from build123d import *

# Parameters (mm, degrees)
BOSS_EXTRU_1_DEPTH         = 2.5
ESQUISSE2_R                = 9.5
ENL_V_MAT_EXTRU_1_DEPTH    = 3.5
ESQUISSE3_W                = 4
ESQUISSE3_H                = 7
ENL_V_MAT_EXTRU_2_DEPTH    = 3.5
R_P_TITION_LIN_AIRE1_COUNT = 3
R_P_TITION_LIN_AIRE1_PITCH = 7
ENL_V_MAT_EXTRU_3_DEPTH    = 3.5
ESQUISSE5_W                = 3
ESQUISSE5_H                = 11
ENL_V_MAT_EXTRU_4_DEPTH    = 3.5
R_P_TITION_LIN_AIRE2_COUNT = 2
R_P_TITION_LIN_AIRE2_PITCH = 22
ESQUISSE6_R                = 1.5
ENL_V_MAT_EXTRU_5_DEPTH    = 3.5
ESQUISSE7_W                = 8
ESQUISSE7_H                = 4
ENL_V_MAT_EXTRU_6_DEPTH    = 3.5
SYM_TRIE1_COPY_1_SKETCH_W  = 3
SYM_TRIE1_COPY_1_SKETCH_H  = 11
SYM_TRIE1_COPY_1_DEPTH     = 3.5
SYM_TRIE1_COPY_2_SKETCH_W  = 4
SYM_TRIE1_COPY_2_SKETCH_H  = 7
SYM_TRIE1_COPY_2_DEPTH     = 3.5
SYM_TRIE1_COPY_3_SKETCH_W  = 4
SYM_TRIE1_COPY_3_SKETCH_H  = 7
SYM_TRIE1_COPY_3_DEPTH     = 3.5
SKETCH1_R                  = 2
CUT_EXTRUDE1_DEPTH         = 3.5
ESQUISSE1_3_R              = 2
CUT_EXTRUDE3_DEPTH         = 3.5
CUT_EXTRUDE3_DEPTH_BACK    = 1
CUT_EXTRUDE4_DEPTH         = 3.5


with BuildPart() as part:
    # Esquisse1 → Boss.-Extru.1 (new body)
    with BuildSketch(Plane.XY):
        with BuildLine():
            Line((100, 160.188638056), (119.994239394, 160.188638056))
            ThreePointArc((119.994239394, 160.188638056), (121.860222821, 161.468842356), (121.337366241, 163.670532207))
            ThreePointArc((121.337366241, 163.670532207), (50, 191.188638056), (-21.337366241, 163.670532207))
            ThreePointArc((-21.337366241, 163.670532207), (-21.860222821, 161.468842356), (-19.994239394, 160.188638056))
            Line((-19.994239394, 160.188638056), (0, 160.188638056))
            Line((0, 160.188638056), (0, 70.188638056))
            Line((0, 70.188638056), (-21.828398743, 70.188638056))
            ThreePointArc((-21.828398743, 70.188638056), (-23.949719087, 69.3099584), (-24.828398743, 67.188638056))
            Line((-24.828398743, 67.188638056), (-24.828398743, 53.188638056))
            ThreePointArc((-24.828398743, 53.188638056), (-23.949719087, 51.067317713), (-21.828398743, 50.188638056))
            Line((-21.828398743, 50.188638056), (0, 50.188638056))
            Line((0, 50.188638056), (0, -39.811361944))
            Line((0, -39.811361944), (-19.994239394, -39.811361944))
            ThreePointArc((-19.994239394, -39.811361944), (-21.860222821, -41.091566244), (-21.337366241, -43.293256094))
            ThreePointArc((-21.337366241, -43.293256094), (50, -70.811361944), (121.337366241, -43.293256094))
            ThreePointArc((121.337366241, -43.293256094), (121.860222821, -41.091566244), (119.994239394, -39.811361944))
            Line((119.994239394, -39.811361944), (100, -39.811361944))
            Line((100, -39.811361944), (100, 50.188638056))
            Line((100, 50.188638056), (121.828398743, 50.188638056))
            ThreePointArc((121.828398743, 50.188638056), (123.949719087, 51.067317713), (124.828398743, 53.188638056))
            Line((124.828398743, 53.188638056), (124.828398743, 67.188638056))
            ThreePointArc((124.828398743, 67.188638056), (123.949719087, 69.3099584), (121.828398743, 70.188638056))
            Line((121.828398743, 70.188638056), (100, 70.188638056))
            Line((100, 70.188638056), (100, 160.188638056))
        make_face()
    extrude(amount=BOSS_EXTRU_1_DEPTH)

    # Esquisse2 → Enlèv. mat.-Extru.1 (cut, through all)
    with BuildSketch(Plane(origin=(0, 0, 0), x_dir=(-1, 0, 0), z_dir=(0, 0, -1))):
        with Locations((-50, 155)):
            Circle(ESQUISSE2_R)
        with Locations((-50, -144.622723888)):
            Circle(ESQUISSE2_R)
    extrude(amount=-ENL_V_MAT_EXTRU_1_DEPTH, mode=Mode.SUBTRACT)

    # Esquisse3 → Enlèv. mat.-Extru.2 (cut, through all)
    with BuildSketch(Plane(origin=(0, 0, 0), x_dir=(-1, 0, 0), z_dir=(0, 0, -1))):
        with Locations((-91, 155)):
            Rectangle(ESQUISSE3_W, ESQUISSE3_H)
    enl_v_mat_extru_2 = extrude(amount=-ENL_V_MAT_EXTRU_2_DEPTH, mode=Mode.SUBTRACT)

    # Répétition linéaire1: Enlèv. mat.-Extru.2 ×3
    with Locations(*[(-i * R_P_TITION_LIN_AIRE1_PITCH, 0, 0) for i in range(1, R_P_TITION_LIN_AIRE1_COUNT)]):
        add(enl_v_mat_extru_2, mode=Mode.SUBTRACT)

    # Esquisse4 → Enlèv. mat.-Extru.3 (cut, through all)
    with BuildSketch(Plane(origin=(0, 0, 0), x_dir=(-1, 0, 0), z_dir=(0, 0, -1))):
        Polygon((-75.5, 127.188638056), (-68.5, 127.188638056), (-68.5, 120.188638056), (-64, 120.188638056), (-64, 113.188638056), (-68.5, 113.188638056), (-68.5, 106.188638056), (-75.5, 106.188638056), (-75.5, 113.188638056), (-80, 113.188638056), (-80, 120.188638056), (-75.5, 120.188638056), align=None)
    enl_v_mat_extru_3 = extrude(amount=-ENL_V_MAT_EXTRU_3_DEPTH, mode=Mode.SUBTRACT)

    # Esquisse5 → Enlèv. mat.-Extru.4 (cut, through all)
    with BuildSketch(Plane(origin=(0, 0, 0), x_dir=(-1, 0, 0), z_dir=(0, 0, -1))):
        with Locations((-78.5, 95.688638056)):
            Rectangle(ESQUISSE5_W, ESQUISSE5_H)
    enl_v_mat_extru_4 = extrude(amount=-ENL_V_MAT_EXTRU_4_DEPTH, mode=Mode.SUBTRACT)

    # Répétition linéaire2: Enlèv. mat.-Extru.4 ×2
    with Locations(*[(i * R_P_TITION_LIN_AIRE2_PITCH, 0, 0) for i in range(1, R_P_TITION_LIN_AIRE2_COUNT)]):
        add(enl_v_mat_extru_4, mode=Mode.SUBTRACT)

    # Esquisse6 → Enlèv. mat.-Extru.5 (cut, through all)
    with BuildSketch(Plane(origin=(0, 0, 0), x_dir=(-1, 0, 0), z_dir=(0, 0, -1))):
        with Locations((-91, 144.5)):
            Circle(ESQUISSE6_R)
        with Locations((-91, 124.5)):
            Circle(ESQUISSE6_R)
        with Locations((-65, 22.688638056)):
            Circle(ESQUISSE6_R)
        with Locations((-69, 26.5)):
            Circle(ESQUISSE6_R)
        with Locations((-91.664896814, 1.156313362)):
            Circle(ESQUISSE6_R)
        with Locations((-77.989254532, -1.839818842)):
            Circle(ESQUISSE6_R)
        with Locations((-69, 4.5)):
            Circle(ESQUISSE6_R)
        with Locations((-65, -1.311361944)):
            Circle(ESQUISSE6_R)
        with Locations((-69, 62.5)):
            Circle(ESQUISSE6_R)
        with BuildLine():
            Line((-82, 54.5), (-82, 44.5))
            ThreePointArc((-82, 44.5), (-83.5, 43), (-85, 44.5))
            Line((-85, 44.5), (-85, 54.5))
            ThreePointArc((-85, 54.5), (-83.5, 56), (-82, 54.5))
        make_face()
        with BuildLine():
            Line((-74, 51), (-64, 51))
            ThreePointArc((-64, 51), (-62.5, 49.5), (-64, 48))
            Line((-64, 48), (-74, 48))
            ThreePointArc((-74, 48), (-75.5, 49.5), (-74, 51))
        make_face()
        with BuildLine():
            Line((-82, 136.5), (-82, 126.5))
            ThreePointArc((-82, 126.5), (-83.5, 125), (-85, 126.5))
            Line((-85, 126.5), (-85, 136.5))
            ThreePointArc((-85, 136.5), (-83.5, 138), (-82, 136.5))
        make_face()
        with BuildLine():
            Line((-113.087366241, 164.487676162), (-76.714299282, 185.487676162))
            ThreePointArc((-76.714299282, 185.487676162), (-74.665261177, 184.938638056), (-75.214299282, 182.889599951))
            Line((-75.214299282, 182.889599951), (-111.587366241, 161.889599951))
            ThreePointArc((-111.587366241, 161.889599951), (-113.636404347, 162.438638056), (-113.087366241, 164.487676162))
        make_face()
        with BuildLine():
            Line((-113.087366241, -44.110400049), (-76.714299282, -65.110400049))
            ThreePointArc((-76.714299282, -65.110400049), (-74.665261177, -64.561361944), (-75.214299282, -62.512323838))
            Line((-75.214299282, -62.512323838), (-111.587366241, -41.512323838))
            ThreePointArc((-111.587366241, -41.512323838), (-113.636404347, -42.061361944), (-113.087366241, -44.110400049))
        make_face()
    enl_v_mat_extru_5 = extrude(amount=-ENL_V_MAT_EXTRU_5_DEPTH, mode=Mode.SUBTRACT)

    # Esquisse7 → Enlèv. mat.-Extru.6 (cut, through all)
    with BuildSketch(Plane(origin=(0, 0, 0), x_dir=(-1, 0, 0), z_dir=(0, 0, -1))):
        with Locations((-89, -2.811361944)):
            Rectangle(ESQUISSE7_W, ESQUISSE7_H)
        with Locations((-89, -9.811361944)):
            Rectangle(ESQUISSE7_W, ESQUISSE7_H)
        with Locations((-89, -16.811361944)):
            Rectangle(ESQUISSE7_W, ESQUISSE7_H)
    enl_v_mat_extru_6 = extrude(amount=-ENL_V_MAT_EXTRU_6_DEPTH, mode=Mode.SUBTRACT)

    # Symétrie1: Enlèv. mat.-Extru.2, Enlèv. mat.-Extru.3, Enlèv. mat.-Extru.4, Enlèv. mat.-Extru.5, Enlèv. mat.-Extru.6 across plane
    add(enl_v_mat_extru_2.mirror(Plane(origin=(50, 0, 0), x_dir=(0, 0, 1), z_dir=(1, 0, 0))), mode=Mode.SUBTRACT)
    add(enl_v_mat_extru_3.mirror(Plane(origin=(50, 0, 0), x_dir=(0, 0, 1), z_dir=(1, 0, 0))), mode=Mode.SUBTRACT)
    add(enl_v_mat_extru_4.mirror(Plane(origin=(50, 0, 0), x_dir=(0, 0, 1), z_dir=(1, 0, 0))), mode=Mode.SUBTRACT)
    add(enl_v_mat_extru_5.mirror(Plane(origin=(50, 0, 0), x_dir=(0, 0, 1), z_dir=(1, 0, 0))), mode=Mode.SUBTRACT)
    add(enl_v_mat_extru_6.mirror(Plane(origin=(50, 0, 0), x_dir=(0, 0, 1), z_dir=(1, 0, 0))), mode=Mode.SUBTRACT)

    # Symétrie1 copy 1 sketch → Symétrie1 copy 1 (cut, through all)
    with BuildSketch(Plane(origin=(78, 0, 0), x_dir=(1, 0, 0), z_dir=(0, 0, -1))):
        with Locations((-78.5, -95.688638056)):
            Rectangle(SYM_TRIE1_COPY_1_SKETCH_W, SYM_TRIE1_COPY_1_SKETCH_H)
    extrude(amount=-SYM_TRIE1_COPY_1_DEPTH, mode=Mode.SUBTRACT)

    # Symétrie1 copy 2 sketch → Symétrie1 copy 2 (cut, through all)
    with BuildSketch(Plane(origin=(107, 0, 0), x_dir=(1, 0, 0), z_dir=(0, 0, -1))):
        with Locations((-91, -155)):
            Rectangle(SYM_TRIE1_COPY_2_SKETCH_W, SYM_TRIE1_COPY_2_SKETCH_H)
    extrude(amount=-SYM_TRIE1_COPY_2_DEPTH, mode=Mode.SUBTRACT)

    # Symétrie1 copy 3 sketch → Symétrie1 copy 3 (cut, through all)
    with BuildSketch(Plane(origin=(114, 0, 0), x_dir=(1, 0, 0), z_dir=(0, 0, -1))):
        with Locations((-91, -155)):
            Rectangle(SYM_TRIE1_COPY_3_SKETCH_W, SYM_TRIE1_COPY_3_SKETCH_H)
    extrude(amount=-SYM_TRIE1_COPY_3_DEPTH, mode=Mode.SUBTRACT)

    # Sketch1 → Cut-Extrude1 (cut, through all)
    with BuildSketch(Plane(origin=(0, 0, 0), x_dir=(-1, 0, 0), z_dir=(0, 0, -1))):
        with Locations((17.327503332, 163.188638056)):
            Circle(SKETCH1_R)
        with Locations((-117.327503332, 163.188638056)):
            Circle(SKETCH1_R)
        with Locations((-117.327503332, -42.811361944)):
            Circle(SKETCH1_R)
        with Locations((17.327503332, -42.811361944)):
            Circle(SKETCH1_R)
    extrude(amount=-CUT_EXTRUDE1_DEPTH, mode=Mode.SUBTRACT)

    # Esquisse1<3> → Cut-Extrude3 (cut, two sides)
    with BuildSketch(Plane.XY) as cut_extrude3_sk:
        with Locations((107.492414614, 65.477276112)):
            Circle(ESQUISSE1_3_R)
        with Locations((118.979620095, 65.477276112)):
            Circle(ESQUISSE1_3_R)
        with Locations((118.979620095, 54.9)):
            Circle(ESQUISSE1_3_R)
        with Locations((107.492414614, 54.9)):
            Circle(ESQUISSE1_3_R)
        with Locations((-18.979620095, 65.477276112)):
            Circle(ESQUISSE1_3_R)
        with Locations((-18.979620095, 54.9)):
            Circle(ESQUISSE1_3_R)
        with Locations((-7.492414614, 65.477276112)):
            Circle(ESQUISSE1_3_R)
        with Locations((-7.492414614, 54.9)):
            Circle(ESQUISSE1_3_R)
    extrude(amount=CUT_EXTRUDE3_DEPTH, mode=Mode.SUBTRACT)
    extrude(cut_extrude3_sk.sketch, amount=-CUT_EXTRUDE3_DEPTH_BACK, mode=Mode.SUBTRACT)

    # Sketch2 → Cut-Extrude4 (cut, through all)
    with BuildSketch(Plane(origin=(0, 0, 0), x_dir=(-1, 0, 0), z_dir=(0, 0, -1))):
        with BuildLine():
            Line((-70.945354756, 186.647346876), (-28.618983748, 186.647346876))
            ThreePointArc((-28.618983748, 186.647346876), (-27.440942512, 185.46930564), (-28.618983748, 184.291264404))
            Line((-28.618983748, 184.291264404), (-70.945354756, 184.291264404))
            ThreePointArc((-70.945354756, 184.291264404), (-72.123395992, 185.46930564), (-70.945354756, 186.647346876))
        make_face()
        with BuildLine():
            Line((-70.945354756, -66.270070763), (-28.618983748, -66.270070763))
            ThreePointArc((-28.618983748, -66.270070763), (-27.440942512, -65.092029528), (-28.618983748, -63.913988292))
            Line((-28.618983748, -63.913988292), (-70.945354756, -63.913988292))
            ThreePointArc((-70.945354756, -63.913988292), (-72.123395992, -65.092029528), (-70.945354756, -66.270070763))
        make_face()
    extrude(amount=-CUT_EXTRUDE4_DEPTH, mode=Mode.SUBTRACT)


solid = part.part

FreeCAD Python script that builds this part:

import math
import FreeCAD as App
import Part
import Sketcher

V = App.Vector
Q = App.Units.Quantity


def add_polygon(sketch, points):
    """Adds a closed chain of lines whose ends are joined by coincident constraints."""
    first, n = sketch.GeometryCount, len(points)
    for a, b in zip(points, points[1:] + points[:1]):
        sketch.addGeometry(Part.LineSegment(App.Vector(*a, 0), App.Vector(*b, 0)), False)
    for i in range(n):
        sketch.addConstraint(Sketcher.Constraint("Coincident", first + i, 2, first + (i + 1) % n, 1))

doc = App.newDocument("Part")
body = doc.addObject("PartDesign::Body", "Body")

# Sketch on XY plane
sketch1 = doc.addObject("Sketcher::SketchObject", "Sketch")
body.addObject(sketch1)
sketch1.AttachmentSupport = (doc.XY_Plane, [""])
sketch1.MapMode = "FlatFace"
sketch1.addGeometry(Part.LineSegment(V(100, 160.2, 0), V(120, 160.2, 0)), False)
sketch1.addGeometry(Part.ArcOfCircle(Part.Circle(V(120, 162.2, 0), V(0, 0, 1), 2), math.radians(-90), math.radians(48)), False)
sketch1.addGeometry(Part.ArcOfCircle(Part.Circle(V(50, 85, 0), V(0, 0, 1), 106.2), math.radians(48), math.radians(132)), False)
sketch1.addGeometry(Part.ArcOfCircle(Part.Circle(V(-20, 162.2, 0), V(0, 0, 1), 2), math.radians(132), math.radians(270)), False)
sketch1.addGeometry(Part.LineSegment(V(-20, 160.2, 0), V(0, 160.2, 0)), False)
sketch1.addGeometry(Part.LineSegment(V(0, 160.2, 0), V(0, 70.2, 0)), False)
sketch1.addGeometry(Part.LineSegment(V(0, 70.2, 0), V(-21.8, 70.2, 0)), False)
sketch1.addGeometry(Part.ArcOfCircle(Part.Circle(V(-21.8, 67.2, 0), V(0, 0, 1), 3), math.radians(90), math.radians(180)), False)
sketch1.addGeometry(Part.LineSegment(V(-24.8, 67.2, 0), V(-24.8, 53.2, 0)), False)
sketch1.addGeometry(Part.ArcOfCircle(Part.Circle(V(-21.8, 53.2, 0), V(0, 0, 1), 3), math.radians(180), math.radians(270)), False)
sketch1.addGeometry(Part.LineSegment(V(-21.8, 50.2, 0), V(0, 50.2, 0)), False)
sketch1.addGeometry(Part.LineSegment(V(0, 50.2, 0), V(0, -39.8, 0)), False)
sketch1.addGeometry(Part.LineSegment(V(0, -39.8, 0), V(-20, -39.8, 0)), False)
sketch1.addGeometry(Part.ArcOfCircle(Part.Circle(V(-20, -41.8, 0), V(0, 0, 1), 2), math.radians(90), math.radians(228)), False)
sketch1.addGeometry(Part.ArcOfCircle(Part.Circle(V(50, 35.4, 0), V(0, 0, 1), 106.2), math.radians(-132), math.radians(-48)), False)
sketch1.addGeometry(Part.ArcOfCircle(Part.Circle(V(120, -41.8, 0), V(0, 0, 1), 2), math.radians(-48), math.radians(90)), False)
sketch1.addGeometry(Part.LineSegment(V(120, -39.8, 0), V(100, -39.8, 0)), False)
sketch1.addGeometry(Part.LineSegment(V(100, -39.8, 0), V(100, 50.2, 0)), False)
sketch1.addGeometry(Part.LineSegment(V(100, 50.2, 0), V(121.8, 50.2, 0)), False)
sketch1.addGeometry(Part.ArcOfCircle(Part.Circle(V(121.8, 53.2, 0), V(0, 0, 1), 3), math.radians(-90), math.radians(0)), False)
sketch1.addGeometry(Part.LineSegment(V(124.8, 53.2, 0), V(124.8, 67.2, 0)), False)
sketch1.addGeometry(Part.ArcOfCircle(Part.Circle(V(121.8, 67.2, 0), V(0, 0, 1), 3), math.radians(0), math.radians(90)), False)
sketch1.addGeometry(Part.LineSegment(V(121.8, 70.2, 0), V(100, 70.2, 0)), False)
sketch1.addGeometry(Part.LineSegment(V(100, 70.2, 0), V(100, 160.2, 0)), False)
sketch1.addConstraint(Sketcher.Constraint("Tangent", 0, 2, 1, 1))
sketch1.addConstraint(Sketcher.Constraint("Tangent", 1, 2, 2, 1))
sketch1.addConstraint(Sketcher.Constraint("Tangent", 2, 2, 3, 1))
sketch1.addConstraint(Sketcher.Constraint("Tangent", 3, 2, 4, 1))
sketch1.addConstraint(Sketcher.Constraint("Coincident", 4, 2, 5, 1))
sketch1.addConstraint(Sketcher.Constraint("Coincident", 5, 2, 6, 1))
sketch1.addConstraint(Sketcher.Constraint("Tangent", 6, 2, 7, 1))
sketch1.addConstraint(Sketcher.Constraint("Tangent", 7, 2, 8, 1))
sketch1.addConstraint(Sketcher.Constraint("Tangent", 8, 2, 9, 1))
sketch1.addConstraint(Sketcher.Constraint("Tangent", 9, 2, 10, 1))
sketch1.addConstraint(Sketcher.Constraint("Coincident", 10, 2, 11, 1))
sketch1.addConstraint(Sketcher.Constraint("Coincident", 11, 2, 12, 1))
sketch1.addConstraint(Sketcher.Constraint("Tangent", 12, 2, 13, 1))
sketch1.addConstraint(Sketcher.Constraint("Tangent", 13, 2, 14, 1))
sketch1.addConstraint(Sketcher.Constraint("Tangent", 14, 2, 15, 1))
sketch1.addConstraint(Sketcher.Constraint("Tangent", 15, 2, 16, 1))
sketch1.addConstraint(Sketcher.Constraint("Coincident", 16, 2, 17, 1))
sketch1.addConstraint(Sketcher.Constraint("Coincident", 17, 2, 18, 1))
sketch1.addConstraint(Sketcher.Constraint("Tangent", 18, 2, 19, 1))
sketch1.addConstraint(Sketcher.Constraint("Tangent", 19, 2, 20, 1))
sketch1.addConstraint(Sketcher.Constraint("Tangent", 20, 2, 21, 1))
sketch1.addConstraint(Sketcher.Constraint("Tangent", 21, 2, 22, 1))
sketch1.addConstraint(Sketcher.Constraint("Coincident", 22, 2, 23, 1))
sketch1.addConstraint(Sketcher.Constraint("Coincident", 23, 2, 0, 1))
sketch1.addConstraint(Sketcher.Constraint("Horizontal", 0))
sketch1.addConstraint(Sketcher.Constraint("Horizontal", 4))
sketch1.addConstraint(Sketcher.Constraint("Vertical", 5))
sketch1.addConstraint(Sketcher.Constraint("Horizontal", 6))
sketch1.addConstraint(Sketcher.Constraint("Vertical", 8))
sketch1.addConstraint(Sketcher.Constraint("Horizontal", 10))
sketch1.addConstraint(Sketcher.Constraint("Vertical", 11))
sketch1.addConstraint(Sketcher.Constraint("Horizontal", 12))
sketch1.addConstraint(Sketcher.Constraint("Horizontal", 16))
sketch1.addConstraint(Sketcher.Constraint("Vertical", 17))
sketch1.addConstraint(Sketcher.Constraint("Horizontal", 18))
sketch1.addConstraint(Sketcher.Constraint("Vertical", 20))
sketch1.addConstraint(Sketcher.Constraint("Horizontal", 22))
sketch1.addConstraint(Sketcher.Constraint("Vertical", 23))
sketch1.addConstraint(Sketcher.Constraint("Equal", 1, 3))
sketch1.addConstraint(Sketcher.Constraint("Equal", 7, 9))
sketch1.addConstraint(Sketcher.Constraint("Equal", 3, 13))
sketch1.addConstraint(Sketcher.Constraint("Equal", 2, 14))
sketch1.addConstraint(Sketcher.Constraint("Equal", 13, 15))
sketch1.addConstraint(Sketcher.Constraint("Equal", 9, 19))
sketch1.addConstraint(Sketcher.Constraint("Equal", 19, 21))
sketch1.addConstraint(Sketcher.Constraint("PointOnObject", 4, 2, -2))
sketch1.addConstraint(Sketcher.Constraint("PointOnObject", 10, 2, -2))
sketch1.addConstraint(Sketcher.Constraint("Horizontal", 1, 3, 3, 3))
sketch1.addConstraint(Sketcher.Constraint("Horizontal", 13, 3, 15, 3))
sketch1.addConstraint(Sketcher.Constraint("Horizontal", 9, 3, 19, 3))
sketch1.addConstraint(Sketcher.Constraint("Horizontal", 7, 3, 21, 3))
sketch1.addConstraint(Sketcher.Constraint("Vertical", 3, 3, 13, 3))
sketch1.addConstraint(Sketcher.Constraint("Vertical", 2, 3, 14, 3))
sketch1.addConstraint(Sketcher.Constraint("Vertical", 17, 2, 22, 2))
sketch1.addConstraint(Sketcher.Constraint("Equal", 0, 4))
sketch1.addConstraint(Sketcher.Constraint("Equal", 10, 18))
sketch1.addConstraint(Sketcher.Constraint("Equal", 5, 11))
sketch1.addConstraint(Sketcher.Constraint("Radius", 1, 2.0))
sketch1.addConstraint(Sketcher.Constraint("Radius", 7, 3.0))
sketch1.addConstraint(Sketcher.Constraint("DistanceY", 5, 2, 5, 1, 90.0))
sketch1.addConstraint(Sketcher.Constraint("DistanceY", 8, 2, 8, 1, 14.0))
sketch1.addConstraint(Sketcher.Constraint("DistanceX", -1, 1, 2, 3, 50.0))
sketch1.addConstraint(Sketcher.Constraint("DistanceX", 6, 2, 6, 1, 21.828399))
sketch1.addConstraint(Sketcher.Constraint("Radius", 2, 106.225806))
sketch1.addConstraint(Sketcher.Constraint("DistanceX", 0, 1, 0, 2, 19.994239))
sketch1.addConstraint(Sketcher.Constraint("DistanceY", -1, 1, 1, 3, 162.188638))
pad1 = doc.addObject("PartDesign::Pad", "Pad")
body.addObject(pad1)
pad1.Profile = sketch1
pad1.Length = 2.5

# Sketch on XY plane
sketch2 = doc.addObject("Sketcher::SketchObject", "Sketch001")
body.addObject(sketch2)
sketch2.AttachmentSupport = (doc.XY_Plane, [""])
sketch2.MapMode = "FlatFace"
sketch2.addGeometry(Part.Circle(V(50, 155, 0), V(0, 0, 1), 10), False)
sketch2.addGeometry(Part.Circle(V(50, -145, 0), V(0, 0, 1), 10), False)
sketch2.addConstraint(Sketcher.Constraint("Equal", 0, 1))
sketch2.addConstraint(Sketcher.Constraint("Vertical", 0, 3, 1, 3))
sketch2.addConstraint(Sketcher.Constraint("Diameter", 0, 19.0))
sketch2.addConstraint(Sketcher.Constraint("DistanceX", -1, 1, 0, 3, 50.0))
sketch2.addConstraint(Sketcher.Constraint("DistanceY", -1, 1, 0, 3, 155.0))
sketch2.addConstraint(Sketcher.Constraint("DistanceY", 1, 3, -1, 1, 144.622724))
pocket1 = doc.addObject("PartDesign::Pocket", "Pocket")
body.addObject(pocket1)
pocket1.Profile = sketch2
pocket1.Type = "ThroughAll"
pocket1.Reversed = True

# Sketch on XY plane
sketch3 = doc.addObject("Sketcher::SketchObject", "Sketch002")
body.addObject(sketch3)
sketch3.AttachmentSupport = (doc.XY_Plane, [""])
sketch3.MapMode = "FlatFace"
add_polygon(sketch3, [(93, 158.5), (93, 151.5), (89, 151.5), (89, 158.5)])  # lines 0-3
sketch3.addConstraint(Sketcher.Constraint("Vertical", 0))
sketch3.addConstraint(Sketcher.Constraint("Horizontal", 1))
sketch3.addConstraint(Sketcher.Constraint("Vertical", 2))
sketch3.addConstraint(Sketcher.Constraint("Horizontal", 3))
sketch3.addConstraint(Sketcher.Constraint("DistanceX", 1, 2, 1, 1, 4.0))
sketch3.addConstraint(Sketcher.Constraint("DistanceY", 0, 2, 0, 1, 7.0))
sketch3.addConstraint(Sketcher.Constraint("DistanceX", -1, 1, 0, 2, 93.0))
sketch3.addConstraint(Sketcher.Constraint("DistanceY", -1, 1, 0, 2, 151.5))
pocket2 = doc.addObject("PartDesign::Pocket", "Pocket001")
body.addObject(pocket2)
pocket2.Profile = sketch3
pocket2.Type = "ThroughAll"
pocket2.Reversed = True
doc.recompute()

linearpattern = doc.addObject("PartDesign::LinearPattern", "LinearPattern")
body.addObject(linearpattern)
linearpattern.Originals = [pocket2]
linearpattern.Direction = (doc.X_Axis, [""])
linearpattern.Mode = "offset"
linearpattern.Offset = 7
linearpattern.Occurrences = 3
linearpattern.Reversed = True
body.Tip = linearpattern

# Sketch on XY plane
sketch4 = doc.addObject("Sketcher::SketchObject", "Sketch003")
body.addObject(sketch4)
sketch4.AttachmentSupport = (doc.XY_Plane, [""])
sketch4.MapMode = "FlatFace"
add_polygon(sketch4, [(68.5, 127.2), (75.5, 127.2), (75.5, 120.2), (80, 120.2), (80, 113.2), (75.5, 113.2), (75.5, 106.2), (68.5, 106.2), (68.5, 113.2), (64, 113.2), (64, 120.2), (68.5, 120.2)])  # lines 0-11
sketch4.addConstraint(Sketcher.Constraint("Horizontal", 0))
sketch4.addConstraint(Sketcher.Constraint("Vertical", 1))
sketch4.addConstraint(Sketcher.Constraint("Horizontal", 2))
sketch4.addConstraint(Sketcher.Constraint("Vertical", 3))
sketch4.addConstraint(Sketcher.Constraint("Horizontal", 4))
sketch4.addConstraint(Sketcher.Constraint("Vertical", 5))
sketch4.addConstraint(Sketcher.Constraint("Horizontal", 6))
sketch4.addConstraint(Sketcher.Constraint("Vertical", 7))
sketch4.addConstraint(Sketcher.Constraint("Horizontal", 8))
sketch4.addConstraint(Sketcher.Constraint("Vertical", 9))
sketch4.addConstraint(Sketcher.Constraint("Horizontal", 10))
sketch4.addConstraint(Sketcher.Constraint("Vertical", 11))
sketch4.addConstraint(Sketcher.Constraint("Horizontal", 4, 2, 7, 2))
sketch4.addConstraint(Sketcher.Constraint("Horizontal", 2, 2, 9, 2))
sketch4.addConstraint(Sketcher.Constraint("Vertical", 1, 2, 4, 2))
sketch4.addConstraint(Sketcher.Constraint("Vertical", 7, 2, 10, 2))
sketch4.addConstraint(Sketcher.Constraint("Equal", 4, 8))
sketch4.addConstraint(Sketcher.Constraint("Equal", 6, 1))
sketch4.addConstraint(Sketcher.Constraint("Equal", 1, 3))
sketch4.addConstraint(Sketcher.Constraint("Equal", 3, 5))
sketch4.addConstraint(Sketcher.Constraint("DistanceX", 0, 1, 0, 2, 7.0))
sketch4.addConstraint(Sketcher.Constraint("DistanceX", 2, 1, 2, 2, 4.5))
sketch4.addConstraint(Sketcher.Constraint("DistanceX", -1, 1, 2, 2, 80.0))
sketch4.addConstraint(Sketcher.Constraint("DistanceY", -1, 1, 0, 2, 127.188638))
pocket3 = doc.addObject("PartDesign::Pocket", "Pocket002")
body.addObject(pocket3)
pocket3.Profile = sketch4
pocket3.Type = "ThroughAll"
pocket3.Reversed = True

# Sketch on XY plane
sketch5 = doc.addObject("Sketcher::SketchObject", "Sketch004")
body.addObject(sketch5)
sketch5.AttachmentSupport = (doc.XY_Plane, [""])
sketch5.MapMode = "FlatFace"
add_polygon(sketch5, [(80, 101.2), (80, 90.2), (77, 90.2), (77, 101.2)])  # lines 0-3
sketch5.addConstraint(Sketcher.Constraint("Vertical", 0))
sketch5.addConstraint(Sketcher.Constraint("Horizontal", 1))
sketch5.addConstraint(Sketcher.Constraint("Vertical", 2))
sketch5.addConstraint(Sketcher.Constraint("Horizontal", 3))
sketch5.addConstraint(Sketcher.Constraint("DistanceX", 1, 2, 1, 1, 3.0))
sketch5.addConstraint(Sketcher.Constraint("DistanceY", 0, 2, 0, 1, 11.0))
sketch5.addConstraint(Sketcher.Constraint("DistanceX", -1, 1, 0, 2, 80.0))
sketch5.addConstraint(Sketcher.Constraint("DistanceY", -1, 1, 0, 2, 90.188638))
pocket4 = doc.addObject("PartDesign::Pocket", "Pocket003")
body.addObject(pocket4)
pocket4.Profile = sketch5
pocket4.Type = "ThroughAll"
pocket4.Reversed = True
doc.recompute()

linearpattern2 = doc.addObject("PartDesign::LinearPattern", "LinearPattern001")
body.addObject(linearpattern2)
linearpattern2.Originals = [pocket4]
linearpattern2.Direction = (doc.X_Axis, [""])
linearpattern2.Mode = "offset"
linearpattern2.Offset = 22
linearpattern2.Occurrences = 2
body.Tip = linearpattern2

# Sketch on XY plane
sketch6 = doc.addObject("Sketcher::SketchObject", "Sketch005")
body.addObject(sketch6)
sketch6.AttachmentSupport = (doc.XY_Plane, [""])
sketch6.MapMode = "FlatFace"
sketch6.addGeometry(Part.Circle(V(91, 144.5, 0), V(0, 0, 1), 1.5), False)
sketch6.addGeometry(Part.Circle(V(91, 124.5, 0), V(0, 0, 1), 1.5), False)
sketch6.addGeometry(Part.Circle(V(65, 22.7, 0), V(0, 0, 1), 1.5), False)
sketch6.addGeometry(Part.Circle(V(69, 26.5, 0), V(0, 0, 1), 1.5), False)
sketch6.addGeometry(Part.Circle(V(91.7, 1.2, 0), V(0, 0, 1), 1.5), False)
sketch6.addGeometry(Part.Circle(V(78, -1.8, 0), V(0, 0, 1), 1.5), False)
sketch6.addGeometry(Part.Circle(V(69, 4.5, 0), V(0, 0, 1), 1.5), False)
sketch6.addGeometry(Part.Circle(V(65, -1.3, 0), V(0, 0, 1), 1.5), False)
sketch6.addGeometry(Part.Circle(V(69, 62.5, 0), V(0, 0, 1), 1.5), False)
sketch6.addGeometry(Part.LineSegment(V(82, 44.5, 0), V(82, 54.5, 0)), False)
sketch6.addGeometry(Part.ArcOfCircle(Part.Circle(V(83.5, 54.5, 0), V(0, 0, 1), 1.5), math.radians(0), math.radians(180)), False)
sketch6.addGeometry(Part.LineSegment(V(85, 54.5, 0), V(85, 44.5, 0)), False)
sketch6.addGeometry(Part.ArcOfCircle(Part.Circle(V(83.5, 44.5, 0), V(0, 0, 1), 1.5), math.radians(180), math.radians(360)), False)
sketch6.addGeometry(Part.LineSegment(V(64, 51, 0), V(74, 51, 0)), False)
sketch6.addGeometry(Part.ArcOfCircle(Part.Circle(V(74, 49.5, 0), V(0, 0, 1), 1.5), math.radians(-90), math.radians(90)), False)
sketch6.addGeometry(Part.LineSegment(V(74, 48, 0), V(64, 48, 0)), False)
sketch6.addGeometry(Part.ArcOfCircle(Part.Circle(V(64, 49.5, 0), V(0, 0, 1), 1.5), math.radians(90), math.radians(270)), False)
sketch6.addGeometry(Part.LineSegment(V(82, 126.5, 0), V(82, 136.5, 0)), False)
sketch6.addGeometry(Part.ArcOfCircle(Part.Circle(V(83.5, 136.5, 0), V(0, 0, 1), 1.5), math.radians(0), math.radians(180)), False)
sketch6.addGeometry(Part.LineSegment(V(85, 136.5, 0), V(85, 126.5, 0)), False)
sketch6.addGeometry(Part.ArcOfCircle(Part.Circle(V(83.5, 126.5, 0), V(0, 0, 1), 1.5), math.radians(180), math.radians(360)), False)
sketch6.addGeometry(Part.LineSegment(V(76.7, 185.5, 0), V(113.1, 164.5, 0)), False)
sketch6.addGeometry(Part.ArcOfCircle(Part.Circle(V(112.3, 163.2, 0), V(0, 0, 1), 1.5), math.radians(-120), math.radians(60)), False)
sketch6.addGeometry(Part.LineSegment(V(111.6, 161.9, 0), V(75.2, 182.9, 0)), False)
sketch6.addGeometry(Part.ArcOfCircle(Part.Circle(V(76, 184.2, 0), V(0, 0, 1), 1.5), math.radians(60), math.radians(240)), False)
sketch6.addGeometry(Part.LineSegment(V(113.1, -44.1, 0), V(76.7, -65.1, 0)), False)
sketch6.addGeometry(Part.ArcOfCircle(Part.Circle(V(76, -63.8, 0), V(0, 0, 1), 1.5), math.radians(120), math.radians(300)), False)
sketch6.addGeometry(Part.LineSegment(V(75.2, -62.5, 0), V(111.6, -41.5, 0)), False)
sketch6.addGeometry(Part.ArcOfCircle(Part.Circle(V(112.3, -42.8, 0), V(0, 0, 1), 1.5), math.radians(-60), math.radians(120)), False)
sketch6.addConstraint(Sketcher.Constraint("Tangent", 9, 2, 10, 2))
sketch6.addConstraint(Sketcher.Constraint("Tangent", 10, 1, 11, 1))
sketch6.addConstraint(Sketcher.Constraint("Tangent", 11, 2, 12, 2))
sketch6.addConstraint(Sketcher.Constraint("Tangent", 12, 1, 9, 1))
sketch6.addConstraint(Sketcher.Constraint("Tangent", 13, 2, 14, 2))
sketch6.addConstraint(Sketcher.Constraint("Tangent", 14, 1, 15, 1))
sketch6.addConstraint(Sketcher.Constraint("Tangent", 15, 2, 16, 2))
sketch6.addConstraint(Sketcher.Constraint("Tangent", 16, 1, 13, 1))
sketch6.addConstraint(Sketcher.Constraint("Tangent", 17, 2, 18, 2))
sketch6.addConstraint(Sketcher.Constraint("Tangent", 18, 1, 19, 1))
sketch6.addConstraint(Sketcher.Constraint("Tangent", 19, 2, 20, 2))
sketch6.addConstraint(Sketcher.Constraint("Tangent", 20, 1, 17, 1))
sketch6.addConstraint(Sketcher.Constraint("Tangent", 21, 2, 22, 2))
sketch6.addConstraint(Sketcher.Constraint("Tangent", 22, 1, 23, 1))
sketch6.addConstraint(Sketcher.Constraint("Tangent", 23, 2, 24, 2))
sketch6.addConstraint(Sketcher.Constraint("Tangent", 24, 1, 21, 1))
sketch6.addConstraint(Sketcher.Constraint("Tangent", 25, 2, 26, 2))
sketch6.addConstraint(Sketcher.Constraint("Tangent", 26, 1, 27, 1))
sketch6.addConstraint(Sketcher.Constraint("Tangent", 27, 2, 28, 2))
sketch6.addConstraint(Sketcher.Constraint("Tangent", 28, 1, 25, 1))
sketch6.addConstraint(Sketcher.Constraint("Vertical", 9))
sketch6.addConstraint(Sketcher.Constraint("Vertical", 11))
sketch6.addConstraint(Sketcher.Constraint("Horizontal", 13))
sketch6.addConstraint(Sketcher.Constraint("Horizontal", 15))
sketch6.addConstraint(Sketcher.Constraint("Vertical", 17))
sketch6.addConstraint(Sketcher.Constraint("Vertical", 19))
sketch6.addConstraint(Sketcher.Constraint("Equal", 0, 1))
sketch6.addConstraint(Sketcher.Constraint("Equal", 1, 2))
sketch6.addConstraint(Sketcher.Constraint("Equal", 2, 3))
sketch6.addConstraint(Sketcher.Constraint("Equal", 3, 4))
sketch6.addConstraint(Sketcher.Constraint("Equal", 4, 5))
sketch6.addConstraint(Sketcher.Constraint("Equal", 5, 6))
sketch6.addConstraint(Sketcher.Constraint("Equal", 6, 7))
sketch6.addConstraint(Sketcher.Constraint("Equal", 7, 8))
sketch6.addConstraint(Sketcher.Constraint("Equal", 8, 10))
sketch6.addConstraint(Sketcher.Constraint("Equal", 12, 14))
sketch6.addConstraint(Sketcher.Constraint("Equal", 16, 18))
sketch6.addConstraint(Sketcher.Constraint("Equal", 20, 22))
sketch6.addConstraint(Sketcher.Constraint("Equal", 22, 24))
sketch6.addConstraint(Sketcher.Constraint("Equal", 24, 26))
sketch6.addConstraint(Sketcher.Constraint("Equal", 26, 28))
sketch6.addConstraint(Sketcher.Constraint("Vertical", 0, 3, 1, 3))
sketch6.addConstraint(Sketcher.Constraint("Vertical", 3, 3, 6, 3))
sketch6.addConstraint(Sketcher.Constraint("Vertical", 2, 3, 7, 3))
sketch6.addConstraint(Sketcher.Constraint("Vertical", 6, 3, 8, 3))
sketch6.addConstraint(Sketcher.Constraint("Vertical", 12, 3, 18, 3))
sketch6.addConstraint(Sketcher.Constraint("Vertical", 24, 3, 26, 3))
sketch6.addConstraint(Sketcher.Constraint("Vertical", 22, 3, 28, 3))
sketch6.addConstraint(Sketcher.Constraint("Vertical", 24, 1, 25, 2))
sketch6.addConstraint(Sketcher.Constraint("Equal", 15, 9))
sketch6.addConstraint(Sketcher.Constraint("Equal", 11, 17))
sketch6.addConstraint(Sketcher.Constraint("Diameter", 0, 3.0))
sketch6.addConstraint(Sketcher.Constraint("DistanceX", 13, 1, 13, 2, 10.0))
sketch6.addConstraint(Sketcher.Constraint("Angle", 21, Q("-30 deg")))
sketch6.addConstraint(Sketcher.Constraint("Distance", 21, 42.0))
sketch6.addConstraint(Sketcher.Constraint("DistanceX", -1, 1, 0, 3, 91.0))
sketch6.addConstraint(Sketcher.Constraint("DistanceX", -1, 1, 2, 3, 65.0))
sketch6.addConstraint(Sketcher.Constraint("DistanceX", -1, 1, 3, 3, 69.0))
sketch6.addConstraint(Sketcher.Constraint("DistanceX", -1, 1, 14, 3, 74.0))
sketch6.addConstraint(Sketcher.Constraint("DistanceX", -1, 1, 9, 2, 82.0))
sketch6.addConstraint(Sketcher.Constraint("DistanceY", -1, 1, 13, 2, 51.0))
sketch6.addConstraint(Sketcher.Constraint("DistanceY", 1, 3, 0, 3, 20.0))
sketch6.addConstraint(Sketcher.Constraint("DistanceY", 3, 3, 1, 3, 98.0))
sketch6.addConstraint(Sketcher.Constraint("DistanceY", 6, 3, 3, 3, 22.0))
sketch6.addConstraint(Sketcher.Constraint("DistanceY", 7, 3, 2, 3, 24.0))
sketch6.addConstraint(Sketcher.Constraint("DistanceY", 3, 3, 8, 3, 36.0))
sketch6.addConstraint(Sketcher.Constraint("DistanceY", 10, 3, 8, 3, 8.0))
sketch6.addConstraint(Sketcher.Constraint("DistanceY", 14, 3, 10, 3, 5.0))
sketch6.addConstraint(Sketcher.Constraint("DistanceY", 18, 3, 0, 3, 8.0))
sketch6.addConstraint(Sketcher.Constraint("DistanceY", 26, 3, 7, 3, 62.5))
sketch6.addConstraint(Sketcher.Constraint("DistanceX", -1, 1, 24, 3, 75.964299))
sketch6.addConstraint(Sketcher.Constraint("DistanceY", -1, 1, 22, 1, 161.8896))
sketch6.addConstraint(Sketcher.Constraint("DistanceY", 25, 2, -1, 1, 65.1104))
sketch6.addConstraint(Sketcher.Constraint("DistanceY", 5, 3, -1, 1, 1.839819))
sketch6.addConstraint(Sketcher.Constraint("DistanceX", 4, 3, 28, 3, 20.672469))
sketch6.addConstraint(Sketcher.Constraint("DistanceX", 5, 3, 28, 3, 34.348112))
sketch6.addConstraint(Sketcher.Constraint("DistanceY", -1, 1, 4, 3, 1.156313))
pocket5 = doc.addObject("PartDesign::Pocket", "Pocket004")
body.addObject(pocket5)
pocket5.Profile = sketch6
pocket5.Type = "ThroughAll"
pocket5.Reversed = True

# Sketch on XY plane
sketch7 = doc.addObject("Sketcher::SketchObject", "Sketch006")
body.addObject(sketch7)
sketch7.AttachmentSupport = (doc.XY_Plane, [""])
sketch7.MapMode = "FlatFace"
add_polygon(sketch7, [(93, -0.8), (93, -4.8), (85, -4.8), (85, -0.8)])  # lines 0-3
add_polygon(sketch7, [(93, -7.8), (93, -11.8), (85, -11.8), (85, -7.8)])  # lines 4-7
add_polygon(sketch7, [(93, -14.8), (93, -18.8), (85, -18.8), (85, -14.8)])  # lines 8-11
sketch7.addConstraint(Sketcher.Constraint("Vertical", 0))
sketch7.addConstraint(Sketcher.Constraint("Horizontal", 1))
sketch7.addConstraint(Sketcher.Constraint("Vertical", 2))
sketch7.addConstraint(Sketcher.Constraint("Horizontal", 3))
sketch7.addConstraint(Sketcher.Constraint("Vertical", 4))
sketch7.addConstraint(Sketcher.Constraint("Horizontal", 5))
sketch7.addConstraint(Sketcher.Constraint("Vertical", 6))
sketch7.addConstraint(Sketcher.Constraint("Horizontal", 7))
sketch7.addConstraint(Sketcher.Constraint("Vertical", 8))
sketch7.addConstraint(Sketcher.Constraint("Horizontal", 9))
sketch7.addConstraint(Sketcher.Constraint("Vertical", 10))
sketch7.addConstraint(Sketcher.Constraint("Horizontal", 11))
sketch7.addConstraint(Sketcher.Constraint("Vertical", 3, 2, 4, 2))
sketch7.addConstraint(Sketcher.Constraint("Vertical", 2, 2, 5, 2))
sketch7.addConstraint(Sketcher.Constraint("Vertical", 7, 2, 8, 2))
sketch7.addConstraint(Sketcher.Constraint("Vertical", 6, 2, 9, 2))
sketch7.addConstraint(Sketcher.Constraint("Equal", 2, 4))
sketch7.addConstraint(Sketcher.Constraint("Equal", 6, 8))
sketch7.addConstraint(Sketcher.Constraint("DistanceX", 1, 2, 1, 1, 8.0))
sketch7.addConstraint(Sketcher.Constraint("DistanceY", 0, 2, 0, 1, 4.0))
sketch7.addConstraint(Sketcher.Constraint("DistanceX", -1, 1, 0, 2, 93.0))
sketch7.addConstraint(Sketcher.Constraint("DistanceY", 4, 2, 0, 2, 7.0))
sketch7.addConstraint(Sketcher.Constraint("DistanceY", 8, 2, 4, 2, 7.0))
sketch7.addConstraint(Sketcher.Constraint("DistanceY", 0, 2, -1, 1, 4.811362))
pocket6 = doc.addObject("PartDesign::Pocket", "Pocket005")
body.addObject(pocket6)
pocket6.Profile = sketch7
pocket6.Type = "ThroughAll"
pocket6.Reversed = True
doc.recompute()

datumplane = doc.addObject("PartDesign::Plane", "DatumPlane")
body.addObject(datumplane)
datumplane.AttachmentSupport = (doc.YZ_Plane, [""])
datumplane.MapMode = "FlatFace"
datumplane.AttachmentOffset = App.Placement(V(0, 0, 50), App.Rotation())
mirrored = doc.addObject("PartDesign::Mirrored", "Mirrored")
body.addObject(mirrored)
mirrored.Originals = [pocket2, pocket3, pocket4, pocket5, pocket6]
mirrored.MirrorPlane = (datumplane, [""])
body.Tip = mirrored

# Sketch on XY plane
sketch8 = doc.addObject("Sketcher::SketchObject", "Sketch007")
body.addObject(sketch8)
sketch8.AttachmentSupport = (doc.XY_Plane, [""])
sketch8.MapMode = "FlatFace"
add_polygon(sketch8, [(-2, 90.2), (-2, 101.2), (1, 101.2), (1, 90.2)])  # lines 0-3
sketch8.addConstraint(Sketcher.Constraint("Vertical", 0))
sketch8.addConstraint(Sketcher.Constraint("Horizontal", 1))
sketch8.addConstraint(Sketcher.Constraint("Vertical", 2))
sketch8.addConstraint(Sketcher.Constraint("Horizontal", 3))
sketch8.addConstraint(Sketcher.Constraint("DistanceX", 1, 1, 1, 2, 3.0))
sketch8.addConstraint(Sketcher.Constraint("DistanceY", 0, 1, 0, 2, 11.0))
sketch8.addConstraint(Sketcher.Constraint("DistanceX", 0, 2, -1, 1, 2.0))
sketch8.addConstraint(Sketcher.Constraint("DistanceY", -1, 1, 0, 2, 101.188638))
pocket7 = doc.addObject("PartDesign::Pocket", "Pocket006")
body.addObject(pocket7)
pocket7.Profile = sketch8
pocket7.Type = "ThroughAll"
pocket7.Reversed = True

# Sketch on XY plane
sketch9 = doc.addObject("Sketcher::SketchObject", "Sketch008")
body.addObject(sketch9)
sketch9.AttachmentSupport = (doc.XY_Plane, [""])
sketch9.MapMode = "FlatFace"
add_polygon(sketch9, [(14, 151.5), (14, 158.5), (18, 158.5), (18, 151.5)])  # lines 0-3
sketch9.addConstraint(Sketcher.Constraint("Vertical", 0))
sketch9.addConstraint(Sketcher.Constraint("Horizontal", 1))
sketch9.addConstraint(Sketcher.Constraint("Vertical", 2))
sketch9.addConstraint(Sketcher.Constraint("Horizontal", 3))
sketch9.addConstraint(Sketcher.Constraint("DistanceX", 1, 1, 1, 2, 4.0))
sketch9.addConstraint(Sketcher.Constraint("DistanceY", 0, 1, 0, 2, 7.0))
sketch9.addConstraint(Sketcher.Constraint("DistanceX", -1, 1, 0, 2, 14.0))
sketch9.addConstraint(Sketcher.Constraint("DistanceY", -1, 1, 0, 2, 158.5))
pocket8 = doc.addObject("PartDesign::Pocket", "Pocket007")
body.addObject(pocket8)
pocket8.Profile = sketch9
pocket8.Type = "ThroughAll"
pocket8.Reversed = True

# Sketch on XY plane
sketch10 = doc.addObject("Sketcher::SketchObject", "Sketch009")
body.addObject(sketch10)
sketch10.AttachmentSupport = (doc.XY_Plane, [""])
sketch10.MapMode = "FlatFace"
add_polygon(sketch10, [(21, 151.5), (21, 158.5), (25, 158.5), (25, 151.5)])  # lines 0-3
sketch10.addConstraint(Sketcher.Constraint("Vertical", 0))
sketch10.addConstraint(Sketcher.Constraint("Horizontal", 1))
sketch10.addConstraint(Sketcher.Constraint("Vertical", 2))
sketch10.addConstraint(Sketcher.Constraint("Horizontal", 3))
sketch10.addConstraint(Sketcher.Constraint("DistanceX", 1, 1, 1, 2, 4.0))
sketch10.addConstraint(Sketcher.Constraint("DistanceY", 0, 1, 0, 2, 7.0))
sketch10.addConstraint(Sketcher.Constraint("DistanceX", -1, 1, 0, 2, 21.0))
sketch10.addConstraint(Sketcher.Constraint("DistanceY", -1, 1, 0, 2, 158.5))
pocket9 = doc.addObject("PartDesign::Pocket", "Pocket008")
body.addObject(pocket9)
pocket9.Profile = sketch10
pocket9.Type = "ThroughAll"
pocket9.Reversed = True

# Sketch on XY plane
sketch11 = doc.addObject("Sketcher::SketchObject", "Sketch010")
body.addObject(sketch11)
sketch11.AttachmentSupport = (doc.XY_Plane, [""])
sketch11.MapMode = "FlatFace"
sketch11.addGeometry(Part.Circle(V(-17.3, 163.2, 0), V(0, 0, 1), 2), False)
sketch11.addGeometry(Part.Circle(V(117.3, 163.2, 0), V(0, 0, 1), 2), False)
sketch11.addGeometry(Part.Circle(V(117.3, -42.8, 0), V(0, 0, 1), 2), False)
sketch11.addGeometry(Part.Circle(V(-17.3, -42.8, 0), V(0, 0, 1), 2), False)
sketch11.addConstraint(Sketcher.Constraint("Equal", 0, 1))
sketch11.addConstraint(Sketcher.Constraint("Equal", 1, 2))
sketch11.addConstraint(Sketcher.Constraint("Equal", 2, 3))
sketch11.addConstraint(Sketcher.Constraint("Horizontal", 0, 3, 1, 3))
sketch11.addConstraint(Sketcher.Constraint("Horizontal", 2, 3, 3, 3))
sketch11.addConstraint(Sketcher.Constraint("Vertical", 1, 3, 2, 3))
sketch11.addConstraint(Sketcher.Constraint("Vertical", 0, 3, 3, 3))
sketch11.addConstraint(Sketcher.Constraint("Diameter", 0, 4.0))
sketch11.addConstraint(Sketcher.Constraint("DistanceY", 2, 3, 1, 3, 206.0))
sketch11.addConstraint(Sketcher.Constraint("DistanceY", -1, 1, 0, 3, 163.188638))
sketch11.addConstraint(Sketcher.Constraint("DistanceX", 0, 3, -1, 1, 17.327503))
sketch11.addConstraint(Sketcher.Constraint("DistanceX", -1, 1, 1, 3, 117.327503))
pocket10 = doc.addObject("PartDesign::Pocket", "Pocket009")
body.addObject(pocket10)
pocket10.Profile = sketch11
pocket10.Type = "ThroughAll"
pocket10.Reversed = True

# Sketch on XY plane
sketch12 = doc.addObject("Sketcher::SketchObject", "Sketch011")
body.addObject(sketch12)
sketch12.AttachmentSupport = (doc.XY_Plane, [""])
sketch12.MapMode = "FlatFace"
sketch12.addGeometry(Part.Circle(V(107.5, 65.5, 0), V(0, 0, 1), 2), False)
sketch12.addGeometry(Part.Circle(V(119, 65.5, 0), V(0, 0, 1), 2), False)
sketch12.addGeometry(Part.Circle(V(119, 54.9, 0), V(0, 0, 1), 2), False)
sketch12.addGeometry(Part.Circle(V(107.5, 54.9, 0), V(0, 0, 1), 2), False)
sketch12.addGeometry(Part.Circle(V(-19, 65.5, 0), V(0, 0, 1), 2), False)
sketch12.addGeometry(Part.Circle(V(-19, 54.9, 0), V(0, 0, 1), 2), False)
sketch12.addGeometry(Part.Circle(V(-7.5, 65.5, 0), V(0, 0, 1), 2), False)
sketch12.addGeometry(Part.Circle(V(-7.5, 54.9, 0), V(0, 0, 1), 2), False)
sketch12.addConstraint(Sketcher.Constraint("Equal", 0, 1))
sketch12.addConstraint(Sketcher.Constraint("Equal", 1, 2))
sketch12.addConstraint(Sketcher.Constraint("Equal", 2, 3))
sketch12.addConstraint(Sketcher.Constraint("Equal", 3, 4))
sketch12.addConstraint(Sketcher.Constraint("Equal", 4, 5))
sketch12.addConstraint(Sketcher.Constraint("Equal", 5, 6))
sketch12.addConstraint(Sketcher.Constraint("Equal", 6, 7))
sketch12.addConstraint(Sketcher.Constraint("Horizontal", 0, 3, 1, 3))
sketch12.addConstraint(Sketcher.Constraint("Horizontal", 2, 3, 3, 3))
sketch12.addConstraint(Sketcher.Constraint("Horizontal", 1, 3, 4, 3))
sketch12.addConstraint(Sketcher.Constraint("Horizontal", 3, 3, 5, 3))
sketch12.addConstraint(Sketcher.Constraint("Horizontal", 4, 3, 6, 3))
sketch12.addConstraint(Sketcher.Constraint("Horizontal", 5, 3, 7, 3))
sketch12.addConstraint(Sketcher.Constraint("Vertical", 1, 3, 2, 3))
sketch12.addConstraint(Sketcher.Constraint("Vertical", 0, 3, 3, 3))
sketch12.addConstraint(Sketcher.Constraint("Vertical", 4, 3, 5, 3))
sketch12.addConstraint(Sketcher.Constraint("Vertical", 6, 3, 7, 3))
sketch12.addConstraint(Sketcher.Constraint("Diameter", 0, 4.0))
sketch12.addConstraint(Sketcher.Constraint("DistanceY", -1, 1, 2, 3, 54.9))
sketch12.addConstraint(Sketcher.Constraint("DistanceX", -1, 1, 1, 3, 118.97962))
sketch12.addConstraint(Sketcher.Constraint("DistanceX", 4, 3, -1, 1, 18.97962))
sketch12.addConstraint(Sketcher.Constraint("DistanceX", 6, 3, 0, 3, 114.984829))
sketch12.addConstraint(Sketcher.Constraint("DistanceX", -1, 1, 0, 3, 107.492415))
sketch12.addConstraint(Sketcher.Constraint("DistanceY", -1, 1, 0, 3, 65.477276))
pocket11 = doc.addObject("PartDesign::Pocket", "Pocket010")
body.addObject(pocket11)
pocket11.Profile = sketch12
pocket11.Type = "ThroughAll"
pocket11.Midplane = True

# Sketch on XY plane
sketch13 = doc.addObject("Sketcher::SketchObject", "Sketch012")
body.addObject(sketch13)
sketch13.AttachmentSupport = (doc.XY_Plane, [""])
sketch13.MapMode = "FlatFace"
sketch13.addGeometry(Part.LineSegment(V(28.6, 186.6, 0), V(70.9, 186.6, 0)), False)
sketch13.addGeometry(Part.ArcOfCircle(Part.Circle(V(70.9, 185.5, 0), V(0, 0, 1), 1.2), math.radians(-90), math.radians(90)), False)
sketch13.addGeometry(Part.LineSegment(V(70.9, 184.3, 0), V(28.6, 184.3, 0)), False)
sketch13.addGeometry(Part.ArcOfCircle(Part.Circle(V(28.6, 185.5, 0), V(0, 0, 1), 1.2), math.radians(90), math.radians(270)), False)
sketch13.addGeometry(Part.LineSegment(V(70.9, -66.3, 0), V(28.6, -66.3, 0)), False)
sketch13.addGeometry(Part.ArcOfCircle(Part.Circle(V(28.6, -65.1, 0), V(0, 0, 1), 1.2), math.radians(90), math.radians(270)), False)
sketch13.addGeometry(Part.LineSegment(V(28.6, -63.9, 0), V(70.9, -63.9, 0)), False)
sketch13.addGeometry(Part.ArcOfCircle(Part.Circle(V(70.9, -65.1, 0), V(0, 0, 1), 1.2), math.radians(-90), math.radians(90)), False)
sketch13.addConstraint(Sketcher.Constraint("Tangent", 0, 2, 1, 2))
sketch13.addConstraint(Sketcher.Constraint("Tangent", 1, 1, 2, 1))
sketch13.addConstraint(Sketcher.Constraint("Tangent", 2, 2, 3, 2))
sketch13.addConstraint(Sketcher.Constraint("Tangent", 3, 1, 0, 1))
sketch13.addConstraint(Sketcher.Constraint("Tangent", 4, 2, 5, 2))
sketch13.addConstraint(Sketcher.Constraint("Tangent", 5, 1, 6, 1))
sketch13.addConstraint(Sketcher.Constraint("Tangent", 6, 2, 7, 2))
sketch13.addConstraint(Sketcher.Constraint("Tangent", 7, 1, 4, 1))
sketch13.addConstraint(Sketcher.Constraint("Horizontal", 0))
sketch13.addConstraint(Sketcher.Constraint("Horizontal", 2))
sketch13.addConstraint(Sketcher.Constraint("Horizontal", 4))
sketch13.addConstraint(Sketcher.Constraint("Horizontal", 6))
sketch13.addConstraint(Sketcher.Constraint("Equal", 3, 5))
sketch13.addConstraint(Sketcher.Constraint("Vertical", 3, 3, 5, 3))
sketch13.addConstraint(Sketcher.Constraint("Vertical", 1, 3, 7, 3))
sketch13.addConstraint(Sketcher.Constraint("Radius", 1, 1.178041))
sketch13.addConstraint(Sketcher.Constraint("DistanceX", 0, 1, 0, 2, 42.326371))
sketch13.addConstraint(Sketcher.Constraint("DistanceY", 5, 3, -1, 1, 65.09203))
sketch13.addConstraint(Sketcher.Constraint("DistanceX", -1, 1, 1, 3, 70.945355))
sketch13.addConstraint(Sketcher.Constraint("DistanceY", -1, 1, 1, 3, 185.469306))
pocket12 = doc.addObject("PartDesign::Pocket", "Pocket011")
body.addObject(pocket12)
pocket12.Profile = sketch13
pocket12.Type = "ThroughAll"
pocket12.Reversed = True

doc.recompute()
